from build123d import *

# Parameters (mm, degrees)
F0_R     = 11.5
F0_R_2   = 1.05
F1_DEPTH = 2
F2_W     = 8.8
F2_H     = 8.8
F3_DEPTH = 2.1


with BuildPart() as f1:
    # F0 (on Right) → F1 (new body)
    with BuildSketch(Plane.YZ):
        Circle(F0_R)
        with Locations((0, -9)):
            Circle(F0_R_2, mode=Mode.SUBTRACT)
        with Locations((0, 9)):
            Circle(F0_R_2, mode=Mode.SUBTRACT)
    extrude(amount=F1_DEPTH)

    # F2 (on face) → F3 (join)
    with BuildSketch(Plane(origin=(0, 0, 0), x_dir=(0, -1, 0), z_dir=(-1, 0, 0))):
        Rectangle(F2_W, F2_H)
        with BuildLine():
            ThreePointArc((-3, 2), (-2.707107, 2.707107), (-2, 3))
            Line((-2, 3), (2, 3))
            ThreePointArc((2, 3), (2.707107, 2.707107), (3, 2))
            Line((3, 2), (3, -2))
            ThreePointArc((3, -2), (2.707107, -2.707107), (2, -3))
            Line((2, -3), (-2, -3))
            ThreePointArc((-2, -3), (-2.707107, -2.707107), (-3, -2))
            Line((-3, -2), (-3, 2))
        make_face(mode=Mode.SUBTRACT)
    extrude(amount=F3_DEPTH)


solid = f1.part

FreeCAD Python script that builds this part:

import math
import FreeCAD as App
import Part
import Sketcher

V = App.Vector


def add_polygon(sketch, points):
    """Adds a closed chain of lines whose ends are joined by coincident constraints."""
    first, n = sketch.GeometryCount, len(points)
    for a, b in zip(points, points[1:] + points[:1]):
        sketch.addGeometry(Part.LineSegment(App.Vector(*a, 0), App.Vector(*b, 0)), False)
    for i in range(n):
        sketch.addConstraint(Sketcher.Constraint("Coincident", first + i, 2, first + (i + 1) % n, 1))

doc = App.newDocument("Part")
params = doc.addObject("Spreadsheet::Sheet", "Params")
for row, (alias, value) in enumerate([
    ("sketch1_diameter", "23 mm"),
    ("sketch1_diameter2", "2.1 mm"),
    ("pad1_length", "2 mm"),
    ("sketch2_radius", "0.999999 mm"),
    ("sketch2_width", "4 mm"),
    ("sketch2_width2", "8.8 mm"),
    ("pad2_length", "2.1 mm"),
], start=1):
    params.set(f"A{row}", alias)
    params.set(f"B{row}", "=" + value)
    params.setAlias(f"B{row}", alias)

body = doc.addObject("PartDesign::Body", "Body")

sketch1 = body.newObject("Sketcher::SketchObject", "Sketch")
sketch1.AttachmentSupport = (doc.getObject("YZ_Plane"), [""])
sketch1.MapMode = "FlatFace"
sketch1.addGeometry([
    Part.Circle(V(0, 0, 0), V(0, 0, 1), 11.5),
    Part.Circle(V(0, -9, 0), V(0, 0, 1), 1.1),
    Part.Circle(V(0, 9, 0), V(0, 0, 1), 1.1),
], False)
sketch1.addConstraint([
    Sketcher.Constraint("Coincident", 0, 3, -1, 1),
    Sketcher.Constraint("Equal", 1, 2),
    Sketcher.Constraint("Symmetric", 1, 3, 2, 3, -1, 1),
    Sketcher.Constraint("PointOnObject", 1, 3, -2),
    Sketcher.Constraint("Diameter", 0, 23.0),
    Sketcher.Constraint("Diameter", 1, 2.1),
    Sketcher.Constraint("DistanceY", 1, 3, -1, 1, 9.0),
])
sketch1.setExpression("Constraints[4]", "Params.sketch1_diameter")
sketch1.setExpression("Constraints[5]", "Params.sketch1_diameter2")
pad1 = body.newObject("PartDesign::Pad", "Pad")
pad1.Profile = sketch1
pad1.setExpression("Length", "Params.pad1_length")

sketch2 = body.newObject("Sketcher::SketchObject", "Sketch001")
sketch2.AttachmentSupport = (doc.getObject("YZ_Plane"), [""])
sketch2.MapMode = "FlatFace"
add_polygon(sketch2, [(4.4, 4.4), (4.4, -4.4), (-4.4, -4.4), (-4.4, 4.4)])
sketch2.addGeometry(Part.LineSegment(V(3, -2, 0), V(3, 2, 0)), False)
sketch2.addGeometry(Part.ArcOfCircle(Part.Circle(V(2, 2, 0), V(0, 0, 1), 1), math.radians(0), math.radians(90)), False)
sketch2.addGeometry(Part.LineSegment(V(2, 3, 0), V(-2, 3, 0)), False)
sketch2.addGeometry(Part.ArcOfCircle(Part.Circle(V(-2, 2, 0), V(0, 0, 1), 1), math.radians(90), math.radians(180)), False)
sketch2.addGeometry(Part.LineSegment(V(-3, 2, 0), V(-3, -2, 0)), False)
sketch2.addGeometry(Part.ArcOfCircle(Part.Circle(V(-2, -2, 0), V(0, 0, 1), 1), math.radians(180), math.radians(270)), False)
sketch2.addGeometry(Part.LineSegment(V(-2, -3, 0), V(2, -3, 0)), False)
sketch2.addGeometry(Part.ArcOfCircle(Part.Circle(V(2, -2, 0), V(0, 0, 1), 1), math.radians(-90), math.radians(0)), False)
sketch2.addConstraint([
    Sketcher.Constraint("Tangent", 4, 2, 5, 1),
    Sketcher.Constraint("Tangent", 5, 2, 6, 1),
    Sketcher.Constraint("Tangent", 6, 2, 7, 1),
    Sketcher.Constraint("Tangent", 7, 2, 8, 1),
    Sketcher.Constraint("Tangent", 8, 2, 9, 1),
    Sketcher.Constraint("Tangent", 9, 2, 10, 1),
    Sketcher.Constraint("Tangent", 10, 2, 11, 1),
    Sketcher.Constraint("Tangent", 11, 2, 4, 1),
    Sketcher.Constraint("Vertical", 0),
    Sketcher.Constraint("Horizontal", 1),
    Sketcher.Constraint("Vertical", 2),
    Sketcher.Constraint("Horizontal", 3),
    Sketcher.Constraint("Vertical", 4),
    Sketcher.Constraint("Horizontal", 6),
    Sketcher.Constraint("Vertical", 8),
    Sketcher.Constraint("Horizontal", 10),
    Sketcher.Constraint("Equal", 5, 7),
    Sketcher.Constraint("Equal", 7, 9),
    Sketcher.Constraint("Equal", 9, 11),
    Sketcher.Constraint("Symmetric", 5, 3, 9, 3, -1, 1),
    Sketcher.Constraint("Symmetric", 0, 2, 2, 2, -1, 1),
    Sketcher.Constraint("Equal", 3, 0),
    Sketcher.Constraint("Equal", 10, 4),
    Sketcher.Constraint("Radius", 5, 0.999999),
    Sketcher.Constraint("DistanceX", 6, 2, 6, 1, 4.0),
    Sketcher.Constraint("DistanceX", 1, 2, 1, 1, 8.8),
])
sketch2.setExpression("Constraints[27]", "Params.sketch2_radius")
sketch2.setExpression("Constraints[28]", "Params.sketch2_width")
sketch2.setExpression("Constraints[29]", "Params.sketch2_width2")
pad2 = body.newObject("PartDesign::Pad", "Pad001")
pad2.Profile = sketch2
pad2.setExpression("Length", "Params.pad2_length")
pad2.Reversed = True

doc.recompute()
